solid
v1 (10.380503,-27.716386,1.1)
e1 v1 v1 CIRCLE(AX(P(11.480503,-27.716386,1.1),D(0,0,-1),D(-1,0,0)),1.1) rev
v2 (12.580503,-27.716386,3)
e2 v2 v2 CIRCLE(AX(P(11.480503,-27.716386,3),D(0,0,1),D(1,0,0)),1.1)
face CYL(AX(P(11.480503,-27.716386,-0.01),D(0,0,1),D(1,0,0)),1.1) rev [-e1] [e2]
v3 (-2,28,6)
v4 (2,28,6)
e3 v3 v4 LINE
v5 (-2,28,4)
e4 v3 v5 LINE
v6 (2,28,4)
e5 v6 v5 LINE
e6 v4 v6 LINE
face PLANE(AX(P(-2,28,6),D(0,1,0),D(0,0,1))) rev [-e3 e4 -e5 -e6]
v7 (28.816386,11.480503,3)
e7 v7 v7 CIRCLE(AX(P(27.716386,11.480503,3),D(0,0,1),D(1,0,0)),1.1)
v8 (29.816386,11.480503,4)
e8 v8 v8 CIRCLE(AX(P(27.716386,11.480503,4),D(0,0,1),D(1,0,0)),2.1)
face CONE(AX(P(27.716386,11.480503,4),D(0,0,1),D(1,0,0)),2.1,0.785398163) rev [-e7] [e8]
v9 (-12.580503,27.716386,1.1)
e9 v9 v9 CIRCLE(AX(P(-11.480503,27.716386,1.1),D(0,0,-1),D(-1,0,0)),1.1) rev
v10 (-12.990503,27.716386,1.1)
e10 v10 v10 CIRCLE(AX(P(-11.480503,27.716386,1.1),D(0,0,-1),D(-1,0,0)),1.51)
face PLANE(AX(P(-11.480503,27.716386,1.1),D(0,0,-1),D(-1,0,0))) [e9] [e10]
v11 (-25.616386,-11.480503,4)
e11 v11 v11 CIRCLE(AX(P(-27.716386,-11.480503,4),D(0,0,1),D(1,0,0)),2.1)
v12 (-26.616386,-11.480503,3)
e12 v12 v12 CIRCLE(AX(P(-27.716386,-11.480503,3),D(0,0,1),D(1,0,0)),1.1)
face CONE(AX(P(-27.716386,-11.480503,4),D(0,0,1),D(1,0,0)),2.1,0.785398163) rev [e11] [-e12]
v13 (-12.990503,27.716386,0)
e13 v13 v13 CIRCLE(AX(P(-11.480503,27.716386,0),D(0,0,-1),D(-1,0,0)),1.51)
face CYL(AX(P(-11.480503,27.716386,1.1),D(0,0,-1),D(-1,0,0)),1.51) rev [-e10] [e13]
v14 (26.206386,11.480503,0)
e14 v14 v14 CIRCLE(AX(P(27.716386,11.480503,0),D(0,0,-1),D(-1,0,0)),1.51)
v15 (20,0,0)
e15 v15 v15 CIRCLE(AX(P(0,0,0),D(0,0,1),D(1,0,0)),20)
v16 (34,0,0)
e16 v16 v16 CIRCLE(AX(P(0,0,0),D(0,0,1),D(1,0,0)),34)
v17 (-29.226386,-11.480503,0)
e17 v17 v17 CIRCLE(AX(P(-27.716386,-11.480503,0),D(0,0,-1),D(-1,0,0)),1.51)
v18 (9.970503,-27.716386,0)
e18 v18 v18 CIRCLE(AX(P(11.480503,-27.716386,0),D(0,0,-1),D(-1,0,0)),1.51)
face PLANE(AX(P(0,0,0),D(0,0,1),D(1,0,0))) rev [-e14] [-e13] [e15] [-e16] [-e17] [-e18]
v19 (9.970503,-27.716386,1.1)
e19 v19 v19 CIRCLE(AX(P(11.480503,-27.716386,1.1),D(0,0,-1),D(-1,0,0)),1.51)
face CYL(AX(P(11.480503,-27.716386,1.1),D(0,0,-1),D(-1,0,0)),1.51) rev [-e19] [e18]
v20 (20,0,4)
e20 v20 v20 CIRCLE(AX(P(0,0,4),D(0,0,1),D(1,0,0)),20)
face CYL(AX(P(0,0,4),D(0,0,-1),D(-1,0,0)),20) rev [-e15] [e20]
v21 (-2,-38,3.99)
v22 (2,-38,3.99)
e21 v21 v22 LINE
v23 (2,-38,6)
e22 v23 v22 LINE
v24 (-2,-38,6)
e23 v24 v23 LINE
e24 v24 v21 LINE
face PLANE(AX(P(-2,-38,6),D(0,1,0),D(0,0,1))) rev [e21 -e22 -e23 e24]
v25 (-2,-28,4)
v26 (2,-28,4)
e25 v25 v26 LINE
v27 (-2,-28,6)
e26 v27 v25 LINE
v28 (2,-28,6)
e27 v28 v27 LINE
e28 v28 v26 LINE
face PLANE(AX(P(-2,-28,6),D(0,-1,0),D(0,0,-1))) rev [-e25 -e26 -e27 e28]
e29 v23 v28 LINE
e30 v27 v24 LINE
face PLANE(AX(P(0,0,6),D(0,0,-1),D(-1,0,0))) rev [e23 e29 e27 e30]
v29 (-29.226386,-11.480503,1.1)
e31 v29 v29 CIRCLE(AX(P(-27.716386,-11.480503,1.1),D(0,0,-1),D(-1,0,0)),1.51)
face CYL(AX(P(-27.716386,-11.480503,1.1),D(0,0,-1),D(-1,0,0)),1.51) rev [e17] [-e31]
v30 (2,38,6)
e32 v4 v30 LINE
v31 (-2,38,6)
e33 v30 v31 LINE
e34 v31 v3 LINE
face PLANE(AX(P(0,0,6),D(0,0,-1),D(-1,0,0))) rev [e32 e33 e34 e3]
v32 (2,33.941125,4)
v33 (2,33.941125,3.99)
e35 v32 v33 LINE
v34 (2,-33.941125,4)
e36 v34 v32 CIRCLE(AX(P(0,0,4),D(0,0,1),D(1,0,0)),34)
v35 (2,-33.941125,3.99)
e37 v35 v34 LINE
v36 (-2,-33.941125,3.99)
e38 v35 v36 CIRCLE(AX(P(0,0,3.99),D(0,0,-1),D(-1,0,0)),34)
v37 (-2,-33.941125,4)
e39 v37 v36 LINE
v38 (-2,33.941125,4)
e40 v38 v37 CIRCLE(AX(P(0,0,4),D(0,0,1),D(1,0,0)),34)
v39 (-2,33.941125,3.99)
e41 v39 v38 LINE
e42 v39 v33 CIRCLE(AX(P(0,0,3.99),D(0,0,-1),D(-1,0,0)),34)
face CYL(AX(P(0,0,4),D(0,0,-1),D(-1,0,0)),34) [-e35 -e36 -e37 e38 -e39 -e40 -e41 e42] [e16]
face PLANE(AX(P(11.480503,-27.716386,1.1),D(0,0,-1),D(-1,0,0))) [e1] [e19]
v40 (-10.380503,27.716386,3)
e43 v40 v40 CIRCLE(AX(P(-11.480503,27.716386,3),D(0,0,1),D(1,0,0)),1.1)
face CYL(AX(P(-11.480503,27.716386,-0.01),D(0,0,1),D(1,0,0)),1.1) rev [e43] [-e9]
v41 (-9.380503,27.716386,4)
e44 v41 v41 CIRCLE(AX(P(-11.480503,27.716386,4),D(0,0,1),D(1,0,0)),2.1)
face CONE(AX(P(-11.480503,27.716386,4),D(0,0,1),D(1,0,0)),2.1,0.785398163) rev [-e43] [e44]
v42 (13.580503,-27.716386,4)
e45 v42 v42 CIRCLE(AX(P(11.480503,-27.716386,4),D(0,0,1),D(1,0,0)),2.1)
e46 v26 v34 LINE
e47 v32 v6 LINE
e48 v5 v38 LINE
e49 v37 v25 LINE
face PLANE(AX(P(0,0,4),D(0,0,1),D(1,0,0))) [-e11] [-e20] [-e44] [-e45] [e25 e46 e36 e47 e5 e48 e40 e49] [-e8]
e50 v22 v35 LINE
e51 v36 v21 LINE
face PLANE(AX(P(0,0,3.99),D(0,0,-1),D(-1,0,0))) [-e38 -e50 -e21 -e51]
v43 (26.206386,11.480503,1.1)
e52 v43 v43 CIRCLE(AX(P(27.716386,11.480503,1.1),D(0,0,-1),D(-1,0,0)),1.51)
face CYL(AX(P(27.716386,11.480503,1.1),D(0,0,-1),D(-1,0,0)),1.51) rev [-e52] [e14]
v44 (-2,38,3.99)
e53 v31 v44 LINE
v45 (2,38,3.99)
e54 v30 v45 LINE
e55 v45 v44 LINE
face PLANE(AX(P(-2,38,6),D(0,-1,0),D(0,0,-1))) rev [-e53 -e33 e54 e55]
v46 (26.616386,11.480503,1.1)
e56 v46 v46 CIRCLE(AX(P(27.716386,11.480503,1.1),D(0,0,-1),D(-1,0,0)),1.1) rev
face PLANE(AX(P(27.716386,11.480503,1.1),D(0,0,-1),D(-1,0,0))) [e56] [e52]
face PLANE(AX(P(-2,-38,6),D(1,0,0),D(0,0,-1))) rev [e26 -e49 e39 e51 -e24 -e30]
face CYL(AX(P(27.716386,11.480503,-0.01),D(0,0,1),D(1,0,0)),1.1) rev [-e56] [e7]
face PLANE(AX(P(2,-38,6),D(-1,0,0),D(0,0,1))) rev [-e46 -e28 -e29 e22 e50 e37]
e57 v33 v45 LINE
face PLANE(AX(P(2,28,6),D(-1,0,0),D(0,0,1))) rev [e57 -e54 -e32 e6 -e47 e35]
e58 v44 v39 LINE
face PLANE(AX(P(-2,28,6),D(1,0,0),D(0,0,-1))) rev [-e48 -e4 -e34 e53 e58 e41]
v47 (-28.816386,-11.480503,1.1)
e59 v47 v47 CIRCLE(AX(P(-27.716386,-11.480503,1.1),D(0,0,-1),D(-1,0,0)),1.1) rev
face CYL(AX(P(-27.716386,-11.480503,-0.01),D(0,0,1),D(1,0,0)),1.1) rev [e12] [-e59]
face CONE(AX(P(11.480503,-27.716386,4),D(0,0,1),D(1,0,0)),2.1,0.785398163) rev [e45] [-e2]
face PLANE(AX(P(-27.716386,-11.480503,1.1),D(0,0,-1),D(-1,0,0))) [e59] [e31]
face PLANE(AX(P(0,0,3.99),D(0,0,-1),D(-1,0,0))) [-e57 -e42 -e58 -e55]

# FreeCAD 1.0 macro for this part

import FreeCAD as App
import Part
import Sketcher


def faces_at(feature, points):
    """Names of the faces that lie closest to the given points."""
    faces = feature.Shape.Faces
    near = lambda p: min(range(len(faces)), key=lambda i: faces[i].distToShape(Part.Vertex(*p))[0])
    return sorted({f"Face{near(p) + 1}" for p in points})

doc = App.newDocument("Part")
body = doc.addObject("PartDesign::Body", "Body")

sketch1 = doc.addObject("Sketcher::SketchObject", "Sketch")
body.addObject(sketch1)
sketch1.AttachmentSupport = (doc.XY_Plane, [""])
sketch1.MapMode = "FlatFace"
sketch1.addGeometry([
    Part.Circle(App.Vector(0, 0, 0), App.Vector(0, 0, 1), 34),
    Part.Circle(App.Vector(0, 0, 0), App.Vector(0, 0, 1), 20),
], False)
sketch1.addConstraint([
    Sketcher.Constraint("Coincident", 0, 3, -1, 1),
    Sketcher.Constraint("Coincident", 1, 3, -1, 1),
    Sketcher.Constraint("Diameter", 0, 68.0),
    Sketcher.Constraint("Diameter", 1, 40.0),
])
pad1 = doc.addObject("PartDesign::Pad", "Pad")
body.addObject(pad1)
pad1.Profile = sketch1
pad1.Length = 4

sketch2 = doc.addObject("Sketcher::SketchObject", "Sketch001")
body.addObject(sketch2)
sketch2.AttachmentSupport = (doc.XY_Plane, [""])
sketch2.MapMode = "FlatFace"
sketch2.AttachmentOffset = App.Placement(App.Vector(0, 0, 3.99), App.Rotation())
sketch2.addGeometry([
    Part.LineSegment(App.Vector(-2, -28, 0), App.Vector(-2, -38, 0)),
    Part.LineSegment(App.Vector(-2, -38, 0), App.Vector(2, -38, 0)),
    Part.LineSegment(App.Vector(2, -38, 0), App.Vector(2, -28, 0)),
    Part.LineSegment(App.Vector(2, -28, 0), App.Vector(-2, -28, 0)),
], False)
sketch2.addConstraint([
    Sketcher.Constraint("Coincident", 0, 2, 1, 1),
    Sketcher.Constraint("Coincident", 1, 2, 2, 1),
    Sketcher.Constraint("Coincident", 2, 2, 3, 1),
    Sketcher.Constraint("Coincident", 3, 2, 0, 1),
    Sketcher.Constraint("Vertical", 0),
    Sketcher.Constraint("Horizontal", 1),
    Sketcher.Constraint("Vertical", 2),
    Sketcher.Constraint("Horizontal", 3),
    Sketcher.Constraint("DistanceX", 1, 1, 1, 2, 4.0),
    Sketcher.Constraint("DistanceY", 0, 2, 0, 1, 10.0),
    Sketcher.Constraint("DistanceX", 0, 2, -1, 1, 2.0),
    Sketcher.Constraint("DistanceY", 0, 2, -1, 1, 38.0),
])
pad2 = doc.addObject("PartDesign::Pad", "Pad001")
body.addObject(pad2)
pad2.Profile = sketch2
pad2.Length = 2.01

sketch3 = doc.addObject("Sketcher::SketchObject", "Sketch002")
body.addObject(sketch3)
sketch3.AttachmentSupport = (doc.XY_Plane, [""])
sketch3.MapMode = "FlatFace"
sketch3.AttachmentOffset = App.Placement(App.Vector(0, 0, 3.99), App.Rotation())
sketch3.addGeometry([
    Part.LineSegment(App.Vector(-2, 38, 0), App.Vector(-2, 28, 0)),
    Part.LineSegment(App.Vector(-2, 28, 0), App.Vector(2, 28, 0)),
    Part.LineSegment(App.Vector(2, 28, 0), App.Vector(2, 38, 0)),
    Part.LineSegment(App.Vector(2, 38, 0), App.Vector(-2, 38, 0)),
], False)
sketch3.addConstraint([
    Sketcher.Constraint("Coincident", 0, 2, 1, 1),
    Sketcher.Constraint("Coincident", 1, 2, 2, 1),
    Sketcher.Constraint("Coincident", 2, 2, 3, 1),
    Sketcher.Constraint("Coincident", 3, 2, 0, 1),
    Sketcher.Constraint("Vertical", 0),
    Sketcher.Constraint("Horizontal", 1),
    Sketcher.Constraint("Vertical", 2),
    Sketcher.Constraint("Horizontal", 3),
    Sketcher.Constraint("DistanceX", 1, 1, 1, 2, 4.0),
    Sketcher.Constraint("DistanceY", 0, 2, 0, 1, 10.0),
    Sketcher.Constraint("DistanceX", 0, 2, -1, 1, 2.0),
    Sketcher.Constraint("DistanceY", -1, 1, 0, 2, 28.0),
])
pad3 = doc.addObject("PartDesign::Pad", "Pad002")
body.addObject(pad3)
pad3.Profile = sketch3
pad3.Length = 2.01

sketch4 = doc.addObject("Sketcher::SketchObject", "Sketch003")
body.addObject(sketch4)
sketch4.AttachmentSupport = (doc.XY_Plane, [""])
sketch4.MapMode = "FlatFace"
sketch4.AttachmentOffset = App.Placement(App.Vector(0, 0, 4), App.Rotation())
sketch4.addGeometry([
    Part.Circle(App.Vector(27.7, 11.5, 0), App.Vector(0, 0, 1), 1.1),
    Part.Circle(App.Vector(-11.5, 27.7, 0), App.Vector(0, 0, 1), 1.1),
    Part.Circle(App.Vector(-27.7, -11.5, 0), App.Vector(0, 0, 1), 1.1),
    Part.Circle(App.Vector(11.5, -27.7, 0), App.Vector(0, 0, 1), 1.1),
], False)
sketch4.addConstraint([
    Sketcher.Constraint("Equal", 0, 1),
    Sketcher.Constraint("Equal", 1, 2),
    Sketcher.Constraint("Equal", 2, 3),
    Sketcher.Constraint("Symmetric", 0, 3, 2, 3, -1, 1),
    Sketcher.Constraint("Symmetric", 1, 3, 3, 3, -1, 1),
    Sketcher.Constraint("Diameter", 0, 2.2),
    Sketcher.Constraint("DistanceX", 1, 3, 0, 3, 39.196889),
    Sketcher.Constraint("DistanceY", 2, 3, 1, 3, 39.196889),
    Sketcher.Constraint("DistanceX", 2, 3, 0, 3, 55.432772),
    Sketcher.Constraint("DistanceY", 3, 3, 1, 3, 55.432772),
])
pocket1 = doc.addObject("PartDesign::Pocket", "Pocket")
body.addObject(pocket1)
pocket1.Profile = sketch4
pocket1.Length = 4.01
body2 = doc.addObject("PartDesign::Body", "Body001")

sketch5 = doc.addObject("Sketcher::SketchObject", "Sketch004")
body2.addObject(sketch5)
sketch5.AttachmentSupport = (doc.getObject("XY_Plane001"), [""])
sketch5.MapMode = "FlatFace"
sketch5.AttachmentOffset = App.Placement(App.Vector(0, 0, 4), App.Rotation())
sketch5.addGeometry(Part.Circle(App.Vector(27.7, 11.5, 0), App.Vector(0, 0, 1), 2.1), False)
sketch5.addConstraint([
    Sketcher.Constraint("Diameter", 0, 4.2),
    Sketcher.Constraint("DistanceX", -1, 1, 0, 3, 27.716386),
    Sketcher.Constraint("DistanceY", -1, 1, 0, 3, 11.480503),
])
pad4 = doc.addObject("PartDesign::Pad", "Pad003")
body2.addObject(pad4)
pad4.Profile = sketch5
pad4.Length = 1.1
pad4.Reversed = True
doc.recompute()

datumplane = doc.addObject("PartDesign::Plane", "DatumPlane")
body2.addObject(datumplane)
datumplane.AttachmentSupport = (doc.getObject("XY_Plane001"), [""])
datumplane.MapMode = "FlatFace"
datumplane.AttachmentOffset = App.Placement(App.Vector(0, 0, 4), App.Rotation())
draft = doc.addObject("PartDesign::Draft", "Draft")
body2.addObject(draft)
draft.Base = (pad4, faces_at(pad4, [(25.616, 11.481, 3.45)]))
draft.NeutralPlane = (datumplane, [""])
draft.Angle = 45
draft.Reversed = True
doc.recompute()

boolean = doc.addObject("PartDesign::Boolean", "Boolean")
body.addObject(boolean)
boolean.Type = "Cut"
boolean.addObjects([body2])
body3 = doc.addObject("PartDesign::Body", "Body002")

sketch6 = doc.addObject("Sketcher::SketchObject", "Sketch005")
body3.addObject(sketch6)
sketch6.AttachmentSupport = (doc.getObject("XY_Plane002"), [""])
sketch6.MapMode = "FlatFace"
sketch6.AttachmentOffset = App.Placement(App.Vector(0, 0, 4), App.Rotation())
sketch6.addGeometry(Part.Circle(App.Vector(-11.5, 27.7, 0), App.Vector(0, 0, 1), 2.1), False)
sketch6.addConstraint([
    Sketcher.Constraint("Diameter", 0, 4.2),
    Sketcher.Constraint("DistanceX", 0, 3, -1, 1, 11.480503),
    Sketcher.Constraint("DistanceY", -1, 1, 0, 3, 27.716386),
])
pad5 = doc.addObject("PartDesign::Pad", "Pad004")
body3.addObject(pad5)
pad5.Profile = sketch6
pad5.Length = 1.1
pad5.Reversed = True
doc.recompute()

datumplane2 = doc.addObject("PartDesign::Plane", "DatumPlane001")
body3.addObject(datumplane2)
datumplane2.AttachmentSupport = (doc.getObject("XY_Plane002"), [""])
datumplane2.MapMode = "FlatFace"
datumplane2.AttachmentOffset = App.Placement(App.Vector(0, 0, 4), App.Rotation())
draft2 = doc.addObject("PartDesign::Draft", "Draft001")
body3.addObject(draft2)
draft2.Base = (pad5, faces_at(pad5, [(-13.581, 27.716, 3.45)]))
draft2.NeutralPlane = (datumplane2, [""])
draft2.Angle = 45
draft2.Reversed = True
doc.recompute()

boolean2 = doc.addObject("PartDesign::Boolean", "Boolean001")
body.addObject(boolean2)
boolean2.Type = "Cut"
boolean2.addObjects([body3])
body4 = doc.addObject("PartDesign::Body", "Body003")

sketch7 = doc.addObject("Sketcher::SketchObject", "Sketch006")
body4.addObject(sketch7)
sketch7.AttachmentSupport = (doc.getObject("XY_Plane003"), [""])
sketch7.MapMode = "FlatFace"
sketch7.AttachmentOffset = App.Placement(App.Vector(0, 0, 4), App.Rotation())
sketch7.addGeometry(Part.Circle(App.Vector(-27.7, -11.5, 0), App.Vector(0, 0, 1), 2.1), False)
sketch7.addConstraint([
    Sketcher.Constraint("Diameter", 0, 4.2),
    Sketcher.Constraint("DistanceX", 0, 3, -1, 1, 27.716386),
    Sketcher.Constraint("DistanceY", 0, 3, -1, 1, 11.480503),
])
pad6 = doc.addObject("PartDesign::Pad", "Pad005")
body4.addObject(pad6)
pad6.Profile = sketch7
pad6.Length = 1.1
pad6.Reversed = True
doc.recompute()

datumplane3 = doc.addObject("PartDesign::Plane", "DatumPlane002")
body4.addObject(datumplane3)
datumplane3.AttachmentSupport = (doc.getObject("XY_Plane003"), [""])
datumplane3.MapMode = "FlatFace"
datumplane3.AttachmentOffset = App.Placement(App.Vector(0, 0, 4), App.Rotation())
draft3 = doc.addObject("PartDesign::Draft", "Draft002")
body4.addObject(draft3)
draft3.Base = (pad6, faces_at(pad6, [(-29.816, -11.481, 3.45)]))
draft3.NeutralPlane = (datumplane3, [""])
draft3.Angle = 45
draft3.Reversed = True
doc.recompute()

boolean3 = doc.addObject("PartDesign::Boolean", "Boolean002")
body.addObject(boolean3)
boolean3.Type = "Cut"
boolean3.addObjects([body4])
body5 = doc.addObject("PartDesign::Body", "Body004")

sketch8 = doc.addObject("Sketcher::SketchObject", "Sketch007")
body5.addObject(sketch8)
sketch8.AttachmentSupport = (doc.getObject("XY_Plane004"), [""])
sketch8.MapMode = "FlatFace"
sketch8.AttachmentOffset = App.Placement(App.Vector(0, 0, 4), App.Rotation())
sketch8.addGeometry(Part.Circle(App.Vector(11.5, -27.7, 0), App.Vector(0, 0, 1), 2.1), False)
sketch8.addConstraint([
    Sketcher.Constraint("Diameter", 0, 4.2),
    Sketcher.Constraint("DistanceX", -1, 1, 0, 3, 11.480503),
    Sketcher.Constraint("DistanceY", 0, 3, -1, 1, 27.716386),
])
pad7 = doc.addObject("PartDesign::Pad", "Pad006")
body5.addObject(pad7)
pad7.Profile = sketch8
pad7.Length = 1.1
pad7.Reversed = True
doc.recompute()

datumplane4 = doc.addObject("PartDesign::Plane", "DatumPlane003")
body5.addObject(datumplane4)
datumplane4.AttachmentSupport = (doc.getObject("XY_Plane004"), [""])
datumplane4.MapMode = "FlatFace"
datumplane4.AttachmentOffset = App.Placement(App.Vector(0, 0, 4), App.Rotation())
draft4 = doc.addObject("PartDesign::Draft", "Draft003")
body5.addObject(draft4)
draft4.Base = (pad7, faces_at(pad7, [(9.381, -27.716, 3.45)]))
draft4.NeutralPlane = (datumplane4, [""])
draft4.Angle = 45
draft4.Reversed = True
doc.recompute()

boolean4 = doc.addObject("PartDesign::Boolean", "Boolean003")
body.addObject(boolean4)
boolean4.Type = "Cut"
boolean4.addObjects([body5])

sketch9 = doc.addObject("Sketcher::SketchObject", "Sketch008")
body.addObject(sketch9)
sketch9.AttachmentSupport = (doc.XY_Plane, [""])
sketch9.MapMode = "FlatFace"
sketch9.addGeometry([
    Part.Circle(App.Vector(27.7, 11.5, 0), App.Vector(0, 0, 1), 1.5),
    Part.Circle(App.Vector(-11.5, 27.7, 0), App.Vector(0, 0, 1), 1.5),
    Part.Circle(App.Vector(-27.7, -11.5, 0), App.Vector(0, 0, 1), 1.5),
    Part.Circle(App.Vector(11.5, -27.7, 0), App.Vector(0, 0, 1), 1.5),
], False)
sketch9.addConstraint([
    Sketcher.Constraint("Equal", 0, 1),
    Sketcher.Constraint("Equal", 1, 2),
    Sketcher.Constraint("Equal", 2, 3),
    Sketcher.Constraint("Symmetric", 0, 3, 2, 3, -1, 1),
    Sketcher.Constraint("Symmetric", 1, 3, 3, 3, -1, 1),
    Sketcher.Constraint("Diameter", 0, 3.02),
    Sketcher.Constraint("DistanceX", 1, 3, 0, 3, 39.196889),
    Sketcher.Constraint("DistanceY", 2, 3, 1, 3, 39.196889),
    Sketcher.Constraint("DistanceX", 2, 3, 0, 3, 55.432772),
    Sketcher.Constraint("DistanceY", 3, 3, 1, 3, 55.432772),
])
pocket2 = doc.addObject("PartDesign::Pocket", "Pocket001")
body.addObject(pocket2)
pocket2.Profile = sketch9
pocket2.Length = 1.1
pocket2.Reversed = True

doc.recompute()
